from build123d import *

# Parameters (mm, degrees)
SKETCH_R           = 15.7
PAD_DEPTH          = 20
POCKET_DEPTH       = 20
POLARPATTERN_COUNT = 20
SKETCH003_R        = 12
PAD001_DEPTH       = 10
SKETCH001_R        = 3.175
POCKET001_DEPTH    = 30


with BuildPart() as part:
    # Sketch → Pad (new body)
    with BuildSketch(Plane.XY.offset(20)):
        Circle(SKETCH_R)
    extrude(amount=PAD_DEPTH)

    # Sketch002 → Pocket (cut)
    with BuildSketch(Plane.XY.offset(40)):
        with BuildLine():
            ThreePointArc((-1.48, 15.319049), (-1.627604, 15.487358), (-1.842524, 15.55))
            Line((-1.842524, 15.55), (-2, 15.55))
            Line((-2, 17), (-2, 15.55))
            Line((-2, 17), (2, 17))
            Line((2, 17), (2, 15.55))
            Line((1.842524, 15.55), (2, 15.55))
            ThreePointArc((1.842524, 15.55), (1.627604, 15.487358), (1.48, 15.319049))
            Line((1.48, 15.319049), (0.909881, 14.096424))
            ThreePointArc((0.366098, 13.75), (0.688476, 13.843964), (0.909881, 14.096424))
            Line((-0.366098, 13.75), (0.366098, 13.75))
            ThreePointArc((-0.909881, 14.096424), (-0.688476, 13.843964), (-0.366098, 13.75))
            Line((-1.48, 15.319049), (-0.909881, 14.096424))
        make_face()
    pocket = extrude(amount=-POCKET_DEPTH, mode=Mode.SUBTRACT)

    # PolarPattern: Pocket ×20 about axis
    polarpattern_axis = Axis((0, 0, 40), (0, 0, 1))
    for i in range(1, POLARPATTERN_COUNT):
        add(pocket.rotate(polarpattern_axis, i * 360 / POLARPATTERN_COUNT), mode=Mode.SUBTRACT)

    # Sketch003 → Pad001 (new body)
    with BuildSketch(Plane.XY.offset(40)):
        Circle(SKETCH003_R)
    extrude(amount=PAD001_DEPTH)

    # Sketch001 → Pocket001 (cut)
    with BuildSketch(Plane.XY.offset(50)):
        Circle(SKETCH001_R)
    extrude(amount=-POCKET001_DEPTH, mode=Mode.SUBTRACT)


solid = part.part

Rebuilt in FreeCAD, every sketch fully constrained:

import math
import FreeCAD as App
import Part
import Sketcher
from FreeCAD import Vector
Q = App.Units.Quantity

doc = App.newDocument("Part")
body = doc.addObject("PartDesign::Body", "Body")

# Sketch on XY plane
sketch1 = doc.addObject("Sketcher::SketchObject", "Sketch")
body.addObject(sketch1)
sketch1.AttachmentSupport = (doc.XY_Plane, [""])
sketch1.MapMode = "FlatFace"
sketch1.AttachmentOffset = App.Placement(Vector(0, 0, 20), App.Rotation())
sketch1.addGeometry(Part.Circle(Vector(0, 0, 0), Vector(0, 0, 1), 16), False)
sketch1.addConstraint([
    Sketcher.Constraint("Coincident", 0, 3, -1, 1),
    Sketcher.Constraint("Diameter", 0, Q("31.4 mm")),
])
pad1 = doc.addObject("PartDesign::Pad", "Pad")
body.addObject(pad1)
pad1.Profile = sketch1
pad1.Length = 20

# Sketch on XY plane
sketch2 = doc.addObject("Sketcher::SketchObject", "Sketch001")
body.addObject(sketch2)
sketch2.AttachmentSupport = (doc.XY_Plane, [""])
sketch2.MapMode = "FlatFace"
sketch2.AttachmentOffset = App.Placement(Vector(0, 0, 40), App.Rotation())
sketch2.addGeometry([
    Part.ArcOfCircle(Part.Circle(Vector(-1.84, 15.15, 0), Vector(0, 0, 1), 0.4), math.radians(25), math.radians(90)),  # 0
    Part.LineSegment(Vector(-1.48, 15.32, 0), Vector(-0.91, 14.1, 0)),  # 1
    Part.ArcOfCircle(Part.Circle(Vector(-0.37, 14.35, 0), Vector(0, 0, 1), 0.6), math.radians(-155), math.radians(-90)),  # 2
    Part.LineSegment(Vector(-0.37, 13.75, 0), Vector(0.37, 13.75, 0)),  # 3
    Part.ArcOfCircle(Part.Circle(Vector(0.37, 14.35, 0), Vector(0, 0, 1), 0.6), math.radians(-90), math.radians(-25)),  # 4
    Part.LineSegment(Vector(0.91, 14.1, 0), Vector(1.48, 15.32, 0)),  # 5
    Part.ArcOfCircle(Part.Circle(Vector(1.84, 15.15, 0), Vector(0, 0, 1), 0.4), math.radians(90), math.radians(155)),  # 6
    Part.LineSegment(Vector(1.84, 15.55, 0), Vector(2, 15.55, 0)),  # 7
    Part.LineSegment(Vector(2, 15.55, 0), Vector(2, 17, 0)),  # 8
    Part.LineSegment(Vector(2, 17, 0), Vector(-2, 17, 0)),  # 9
    Part.LineSegment(Vector(-2, 17, 0), Vector(-2, 15.55, 0)),  # 10
    Part.LineSegment(Vector(-2, 15.55, 0), Vector(-1.84, 15.55, 0)),  # 11
], False)
sketch2.addConstraint([
    Sketcher.Constraint("Tangent", 0, 1, 1, 1),
    Sketcher.Constraint("Coincident", 1, 2, 2, 1),
    Sketcher.Constraint("Tangent", 2, 2, 3, 1),
    Sketcher.Constraint("Tangent", 3, 2, 4, 1),
    Sketcher.Constraint("Coincident", 4, 2, 5, 1),
    Sketcher.Constraint("Tangent", 5, 2, 6, 2),
    Sketcher.Constraint("Coincident", 6, 1, 7, 1),
    Sketcher.Constraint("Coincident", 7, 2, 8, 1),
    Sketcher.Constraint("Coincident", 8, 2, 9, 1),
    Sketcher.Constraint("Coincident", 9, 2, 10, 1),
    Sketcher.Constraint("Coincident", 10, 2, 11, 1),
    Sketcher.Constraint("Coincident", 11, 2, 0, 2),
    Sketcher.Constraint("Horizontal", 3),
    Sketcher.Constraint("Horizontal", 7),
    Sketcher.Constraint("Vertical", 8),
    Sketcher.Constraint("Horizontal", 9),
    Sketcher.Constraint("Vertical", 10),
    Sketcher.Constraint("Horizontal", 11),
    Sketcher.Constraint("Equal", 2, 4),
    Sketcher.Constraint("Equal", 0, 6),
    Sketcher.Constraint("Symmetric", 0, 3, 6, 3, -2),
    Sketcher.Constraint("Symmetric", 1, 2, 4, 2, -2),
    Sketcher.Constraint("Equal", 7, 11),
    Sketcher.Constraint("Radius", 2, Q("0.600002 mm")),
    Sketcher.Constraint("DistanceX", 9, 2, 9, 1, Q("4 mm")),
    Sketcher.Constraint("Angle", 1, Q("-65.000015 deg")),
    Sketcher.Constraint("DistanceX", -1, 1, 7, 2, Q("2 mm")),
    Sketcher.Constraint("DistanceY", -1, 1, 8, 2, Q("17 mm")),
    Sketcher.Constraint("DistanceY", 8, 1, 8, 2, Q("1.45 mm")),
    Sketcher.Constraint("DistanceY", 2, 3, 0, 3, Q("0.8 mm")),
    Sketcher.Constraint("DistanceY", 4, 3, 6, 1, Q("1.199998 mm")),
    Sketcher.Constraint("DistanceX", 0, 1, -1, 1, Q("1.48 mm")),
    Sketcher.Constraint("DistanceX", 7, 1, 7, 2, Q("0.157476 mm")),
    Sketcher.Constraint("DistanceX", 1, 2, -1, 1, Q("0.909881 mm")),
])
pocket1 = doc.addObject("PartDesign::Pocket", "Pocket")
body.addObject(pocket1)
pocket1.Profile = sketch2
pocket1.Length = 20
doc.recompute()

polarpattern = doc.addObject("PartDesign::PolarPattern", "PolarPattern")
body.addObject(polarpattern)
polarpattern.Originals = [pocket1]
polarpattern.Axis = (doc.Z_Axis, [""])
polarpattern.Angle = 360
polarpattern.Occurrences = 20
body.Tip = polarpattern

# Sketch on XY plane
sketch3 = doc.addObject("Sketcher::SketchObject", "Sketch002")
body.addObject(sketch3)
sketch3.AttachmentSupport = (doc.XY_Plane, [""])
sketch3.MapMode = "FlatFace"
sketch3.AttachmentOffset = App.Placement(Vector(0, 0, 40), App.Rotation())
sketch3.addGeometry(Part.Circle(Vector(0, 0, 0), Vector(0, 0, 1), 12), False)
sketch3.addConstraint([
    Sketcher.Constraint("Coincident", 0, 3, -1, 1),
    Sketcher.Constraint("Diameter", 0, Q("24 mm")),
])
pad2 = doc.addObject("PartDesign::Pad", "Pad001")
body.addObject(pad2)
pad2.Profile = sketch3
pad2.Length = 10

# Sketch on XY plane
sketch4 = doc.addObject("Sketcher::SketchObject", "Sketch003")
body.addObject(sketch4)
sketch4.AttachmentSupport = (doc.XY_Plane, [""])
sketch4.MapMode = "FlatFace"
sketch4.AttachmentOffset = App.Placement(Vector(0, 0, 50), App.Rotation())
sketch4.addGeometry(Part.Circle(Vector(0, 0, 0), Vector(0, 0, 1), 3.2), False)
sketch4.addConstraint([
    Sketcher.Constraint("Coincident", 0, 3, -1, 1),
    Sketcher.Constraint("Diameter", 0, Q("6.35 mm")),
])
pocket2 = doc.addObject("PartDesign::Pocket", "Pocket001")
body.addObject(pocket2)
pocket2.Profile = sketch4
pocket2.Length = 30

doc.recompute()
